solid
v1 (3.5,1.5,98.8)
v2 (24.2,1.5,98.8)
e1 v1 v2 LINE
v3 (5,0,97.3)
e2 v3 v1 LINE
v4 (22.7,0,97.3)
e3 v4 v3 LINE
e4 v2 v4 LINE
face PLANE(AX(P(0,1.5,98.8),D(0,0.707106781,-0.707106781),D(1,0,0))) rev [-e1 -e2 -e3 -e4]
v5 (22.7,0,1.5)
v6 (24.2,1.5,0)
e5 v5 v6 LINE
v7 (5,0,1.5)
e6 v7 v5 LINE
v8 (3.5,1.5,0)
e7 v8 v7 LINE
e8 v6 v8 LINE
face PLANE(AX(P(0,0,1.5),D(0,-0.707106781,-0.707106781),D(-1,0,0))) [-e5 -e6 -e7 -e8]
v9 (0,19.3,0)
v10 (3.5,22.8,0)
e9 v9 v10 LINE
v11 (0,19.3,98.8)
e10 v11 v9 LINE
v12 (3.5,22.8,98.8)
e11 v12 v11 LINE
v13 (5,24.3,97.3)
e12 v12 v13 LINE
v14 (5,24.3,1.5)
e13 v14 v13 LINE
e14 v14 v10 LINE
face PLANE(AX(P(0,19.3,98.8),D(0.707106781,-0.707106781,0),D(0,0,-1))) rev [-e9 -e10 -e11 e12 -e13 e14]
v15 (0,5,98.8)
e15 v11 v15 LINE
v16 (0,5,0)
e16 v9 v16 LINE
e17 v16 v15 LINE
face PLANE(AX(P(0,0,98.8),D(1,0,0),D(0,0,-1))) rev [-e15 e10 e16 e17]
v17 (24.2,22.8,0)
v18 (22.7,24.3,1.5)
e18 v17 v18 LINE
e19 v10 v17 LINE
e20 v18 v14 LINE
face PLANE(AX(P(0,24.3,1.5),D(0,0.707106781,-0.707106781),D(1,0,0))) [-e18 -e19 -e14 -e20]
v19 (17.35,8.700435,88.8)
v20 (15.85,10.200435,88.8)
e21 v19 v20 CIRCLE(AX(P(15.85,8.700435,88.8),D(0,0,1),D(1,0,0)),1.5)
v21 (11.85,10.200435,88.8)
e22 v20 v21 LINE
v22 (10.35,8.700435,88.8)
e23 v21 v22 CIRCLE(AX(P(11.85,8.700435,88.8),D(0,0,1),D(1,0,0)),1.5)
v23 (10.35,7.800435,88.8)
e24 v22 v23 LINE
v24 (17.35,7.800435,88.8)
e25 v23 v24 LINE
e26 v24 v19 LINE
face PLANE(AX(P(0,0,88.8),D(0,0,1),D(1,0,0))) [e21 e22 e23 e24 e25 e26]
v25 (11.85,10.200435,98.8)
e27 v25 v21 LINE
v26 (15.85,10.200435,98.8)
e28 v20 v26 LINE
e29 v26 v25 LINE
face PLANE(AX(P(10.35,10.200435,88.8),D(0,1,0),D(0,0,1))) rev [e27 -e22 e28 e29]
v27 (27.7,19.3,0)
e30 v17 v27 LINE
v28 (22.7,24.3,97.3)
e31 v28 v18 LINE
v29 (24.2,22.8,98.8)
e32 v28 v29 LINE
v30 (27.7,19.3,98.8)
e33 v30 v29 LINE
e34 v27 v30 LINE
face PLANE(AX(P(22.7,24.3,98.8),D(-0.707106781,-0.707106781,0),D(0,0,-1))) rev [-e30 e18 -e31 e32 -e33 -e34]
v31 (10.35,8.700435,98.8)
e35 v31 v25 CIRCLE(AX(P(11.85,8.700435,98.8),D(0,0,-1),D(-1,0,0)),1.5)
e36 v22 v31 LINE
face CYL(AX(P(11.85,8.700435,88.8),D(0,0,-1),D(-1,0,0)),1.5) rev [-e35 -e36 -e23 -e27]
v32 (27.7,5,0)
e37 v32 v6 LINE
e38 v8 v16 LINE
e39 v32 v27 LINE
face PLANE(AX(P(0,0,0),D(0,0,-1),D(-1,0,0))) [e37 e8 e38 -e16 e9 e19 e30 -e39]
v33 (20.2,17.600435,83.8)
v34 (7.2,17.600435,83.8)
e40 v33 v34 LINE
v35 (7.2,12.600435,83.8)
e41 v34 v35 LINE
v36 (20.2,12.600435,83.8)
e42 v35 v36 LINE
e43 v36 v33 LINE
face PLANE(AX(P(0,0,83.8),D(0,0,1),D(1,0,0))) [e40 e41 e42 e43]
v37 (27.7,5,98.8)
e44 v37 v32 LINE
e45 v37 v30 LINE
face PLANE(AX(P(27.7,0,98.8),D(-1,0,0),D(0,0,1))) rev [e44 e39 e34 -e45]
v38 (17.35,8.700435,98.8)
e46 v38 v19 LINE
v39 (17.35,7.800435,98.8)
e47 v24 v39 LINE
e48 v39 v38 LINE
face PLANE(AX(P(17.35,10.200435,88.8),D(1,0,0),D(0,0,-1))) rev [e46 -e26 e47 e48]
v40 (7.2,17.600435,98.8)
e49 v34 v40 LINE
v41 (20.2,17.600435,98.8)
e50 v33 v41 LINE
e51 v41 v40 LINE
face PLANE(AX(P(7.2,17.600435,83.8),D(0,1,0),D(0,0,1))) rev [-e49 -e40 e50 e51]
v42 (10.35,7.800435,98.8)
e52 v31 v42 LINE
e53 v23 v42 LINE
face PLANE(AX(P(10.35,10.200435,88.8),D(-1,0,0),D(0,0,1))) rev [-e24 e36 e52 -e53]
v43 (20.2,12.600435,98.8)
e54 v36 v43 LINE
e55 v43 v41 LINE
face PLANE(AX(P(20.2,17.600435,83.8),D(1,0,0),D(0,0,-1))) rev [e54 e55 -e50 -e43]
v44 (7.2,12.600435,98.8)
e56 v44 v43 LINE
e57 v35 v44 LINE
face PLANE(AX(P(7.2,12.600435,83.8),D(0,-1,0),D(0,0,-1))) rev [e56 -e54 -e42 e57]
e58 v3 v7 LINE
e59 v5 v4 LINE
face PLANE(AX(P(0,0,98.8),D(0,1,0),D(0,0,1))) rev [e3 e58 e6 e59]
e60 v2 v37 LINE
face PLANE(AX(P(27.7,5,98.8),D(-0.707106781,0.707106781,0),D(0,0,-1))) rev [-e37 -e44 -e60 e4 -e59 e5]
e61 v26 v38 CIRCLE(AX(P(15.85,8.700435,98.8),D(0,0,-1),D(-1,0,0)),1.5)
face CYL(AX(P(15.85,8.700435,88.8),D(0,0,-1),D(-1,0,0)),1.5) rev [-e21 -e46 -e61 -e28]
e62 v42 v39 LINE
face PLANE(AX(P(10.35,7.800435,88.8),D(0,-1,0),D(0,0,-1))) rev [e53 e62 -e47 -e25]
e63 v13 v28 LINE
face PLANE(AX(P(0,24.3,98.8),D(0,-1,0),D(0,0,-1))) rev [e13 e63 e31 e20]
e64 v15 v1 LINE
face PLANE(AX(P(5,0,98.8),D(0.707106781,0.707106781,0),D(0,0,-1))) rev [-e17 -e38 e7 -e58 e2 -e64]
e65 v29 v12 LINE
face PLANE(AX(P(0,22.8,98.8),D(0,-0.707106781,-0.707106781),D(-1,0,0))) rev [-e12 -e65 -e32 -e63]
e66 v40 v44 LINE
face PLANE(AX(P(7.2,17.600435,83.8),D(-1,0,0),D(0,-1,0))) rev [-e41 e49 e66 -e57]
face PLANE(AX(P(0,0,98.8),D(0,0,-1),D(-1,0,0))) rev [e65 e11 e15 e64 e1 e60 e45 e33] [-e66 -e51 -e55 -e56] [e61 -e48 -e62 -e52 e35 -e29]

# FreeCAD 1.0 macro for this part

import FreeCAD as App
import Part
import Sketcher
from FreeCAD import Vector


def edges_at(feature, points):
    """Names of the edges that pass closest to the given points."""
    edges = feature.Shape.Edges
    near = lambda p: min(range(len(edges)), key=lambda i: edges[i].distToShape(Part.Vertex(*p))[0])
    return sorted({f"Edge{near(p) + 1}" for p in points})


def add_polygon(sketch, points):
    """Adds a closed chain of lines whose ends are joined by coincident constraints."""
    first, n = sketch.GeometryCount, len(points)
    for a, b in zip(points, points[1:] + points[:1]):
        sketch.addGeometry(Part.LineSegment(App.Vector(*a, 0), App.Vector(*b, 0)), False)
    for i in range(n):
        sketch.addConstraint(Sketcher.Constraint("Coincident", first + i, 2, first + (i + 1) % n, 1))

doc = App.newDocument("Part")
params = doc.addObject("Spreadsheet::Sheet", "Params")
for row, (alias, value) in enumerate([
    ("sketch1_width", "27.7 mm"),
    ("sketch1_height", "24.3 mm"),
    ("pad1_length", "98.8 mm"),
    ("chamfer_size", "5 mm"),
    ("chamfer2_size", "1.5 mm"),
    ("sketch2_width", "13 mm"),
    ("sketch2_height", "5 mm"),
    ("pocket1_length", "15 mm"),
    ("sketch3_width", "7 mm"),
    ("sketch3_height", "2.4 mm"),
    ("pocket2_length", "10 mm"),
    ("fillet_radius", "1.5 mm"),
], start=1):
    params.set(f"A{row}", alias)
    params.set(f"B{row}", "=" + value)
    params.setAlias(f"B{row}", alias)

body = doc.addObject("PartDesign::Body", "Body")

# Sketch on XY plane
sketch1 = doc.addObject("Sketcher::SketchObject", "Sketch")
body.addObject(sketch1)
sketch1.AttachmentSupport = (doc.XY_Plane, [""])
sketch1.MapMode = "FlatFace"
add_polygon(sketch1, [(0, 24), (0, 0), (28, 0), (28, 24)])  # lines 0-3
sketch1.addConstraint([
    Sketcher.Constraint("Vertical", 0),
    Sketcher.Constraint("Horizontal", 1),
    Sketcher.Constraint("Vertical", 2),
    Sketcher.Constraint("Horizontal", 3),
    Sketcher.Constraint("Coincident", 0, 2, -1, 1),
    Sketcher.Constraint("DistanceX", 1, 1, 1, 2, 27.7),
    Sketcher.Constraint("DistanceY", 0, 2, 0, 1, 24.3),
])
sketch1.setExpression("Constraints[9]", "Params.sketch1_width")
sketch1.setExpression("Constraints[10]", "Params.sketch1_height")
pad1 = doc.addObject("PartDesign::Pad", "Pad")
body.addObject(pad1)
pad1.Profile = sketch1
pad1.setExpression("Length", "Params.pad1_length")
doc.recompute()

chamfer = doc.addObject("PartDesign::Chamfer", "Chamfer")
body.addObject(chamfer)
chamfer.Base = (pad1, edges_at(pad1, [
    (0, 24.3, 49.4),
    (27.7, 24.3, 49.4),
    (27.7, 0, 49.4),
    (0, 0, 49.4),
]))
chamfer.setExpression("Size", "Params.chamfer_size")
doc.recompute()

chamfer2 = doc.addObject("PartDesign::Chamfer", "Chamfer001")
body.addObject(chamfer2)
chamfer2.Base = (chamfer, edges_at(chamfer, [
    (13.85, 24.3, 0),
    (13.85, 0, 0),
    (13.85, 24.3, 98.8),
    (13.85, 0, 98.8),
]))
chamfer2.setExpression("Size", "Params.chamfer2_size")

# Sketch on XY plane
sketch2 = doc.addObject("Sketcher::SketchObject", "Sketch001")
body.addObject(sketch2)
sketch2.AttachmentSupport = (doc.XY_Plane, [""])
sketch2.MapMode = "FlatFace"
sketch2.AttachmentOffset = App.Placement(Vector(0, 0, 98.8), App.Rotation())
add_polygon(sketch2, [(7, 18), (7, 13), (20, 13), (20, 18)])  # lines 0-3
sketch2.addConstraint([
    Sketcher.Constraint("Vertical", 0),
    Sketcher.Constraint("Horizontal", 1),
    Sketcher.Constraint("Vertical", 2),
    Sketcher.Constraint("Horizontal", 3),
    Sketcher.Constraint("DistanceX", 1, 1, 1, 2, 13.0),
    Sketcher.Constraint("DistanceY", 0, 2, 0, 1, 5.0),
    Sketcher.Constraint("DistanceX", -1, 1, 0, 2, 7.2),
    Sketcher.Constraint("DistanceY", -1, 1, 0, 2, 12.600435),
])
sketch2.setExpression("Constraints[8]", "Params.sketch2_width")
sketch2.setExpression("Constraints[9]", "Params.sketch2_height")
pocket1 = doc.addObject("PartDesign::Pocket", "Pocket")
body.addObject(pocket1)
pocket1.Profile = sketch2
pocket1.setExpression("Length", "Params.pocket1_length")

# Sketch on XY plane
sketch3 = doc.addObject("Sketcher::SketchObject", "Sketch002")
body.addObject(sketch3)
sketch3.AttachmentSupport = (doc.XY_Plane, [""])
sketch3.MapMode = "FlatFace"
sketch3.AttachmentOffset = App.Placement(Vector(0, 0, 98.8), App.Rotation())
add_polygon(sketch3, [(10.3, 10.2), (10.3, 7.8), (17.4, 7.8), (17.4, 10.2)])  # lines 0-3
sketch3.addConstraint([
    Sketcher.Constraint("Vertical", 0),
    Sketcher.Constraint("Horizontal", 1),
    Sketcher.Constraint("Vertical", 2),
    Sketcher.Constraint("Horizontal", 3),
    Sketcher.Constraint("DistanceX", 1, 1, 1, 2, 7.0),
    Sketcher.Constraint("DistanceY", 0, 2, 0, 1, 2.4),
    Sketcher.Constraint("DistanceX", -1, 1, 0, 2, 10.35),
    Sketcher.Constraint("DistanceY", -1, 1, 0, 2, 7.800435),
])
sketch3.setExpression("Constraints[8]", "Params.sketch3_width")
sketch3.setExpression("Constraints[9]", "Params.sketch3_height")
pocket2 = doc.addObject("PartDesign::Pocket", "Pocket001")
body.addObject(pocket2)
pocket2.Profile = sketch3
pocket2.setExpression("Length", "Params.pocket2_length")
doc.recompute()

fillet = doc.addObject("PartDesign::Fillet", "Fillet")
body.addObject(fillet)
fillet.Base = (pocket2, edges_at(pocket2, [(10.35, 10.2, 93.8), (17.35, 10.2, 93.8)]))
fillet.setExpression("Radius", "Params.fillet_radius")

doc.recompute()
